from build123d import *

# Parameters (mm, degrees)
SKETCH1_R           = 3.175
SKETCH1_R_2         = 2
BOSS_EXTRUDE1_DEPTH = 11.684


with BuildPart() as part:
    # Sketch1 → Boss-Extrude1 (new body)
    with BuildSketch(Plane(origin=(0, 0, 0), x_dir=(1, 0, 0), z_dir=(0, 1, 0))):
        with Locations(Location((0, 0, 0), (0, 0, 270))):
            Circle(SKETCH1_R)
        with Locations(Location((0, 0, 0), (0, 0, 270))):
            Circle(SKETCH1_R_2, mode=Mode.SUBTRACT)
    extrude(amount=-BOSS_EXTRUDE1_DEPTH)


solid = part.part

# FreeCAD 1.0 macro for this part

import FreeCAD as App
import Part
import Sketcher
Q = App.Units.Quantity

doc = App.newDocument("Part")
body = doc.addObject("PartDesign::Body", "Body")

sketch1 = body.newObject("Sketcher::SketchObject", "Sketch")
sketch1.AttachmentSupport = (doc.getObject("XZ_Plane"), [""])
sketch1.MapMode = "FlatFace"
sketch1.addGeometry([
    Part.Circle(App.Vector(0, 0, 0), App.Vector(0, 0, 1), 3.175),
    Part.Circle(App.Vector(0, 0, 0), App.Vector(0, 0, 1), 2),
], False)
sketch1.addConstraint([
    Sketcher.Constraint("Coincident", 0, 3, -1, 1),
    Sketcher.Constraint("Coincident", 1, 3, -1, 1),
    Sketcher.Constraint("Diameter", 0, Q("0.25 in")),
    Sketcher.Constraint("Diameter", 1, 4.0),
])
pad1 = body.newObject("PartDesign::Pad", "Pad")
pad1.Profile = sketch1
pad1.Length = Q("0.46 in")

doc.recompute()
